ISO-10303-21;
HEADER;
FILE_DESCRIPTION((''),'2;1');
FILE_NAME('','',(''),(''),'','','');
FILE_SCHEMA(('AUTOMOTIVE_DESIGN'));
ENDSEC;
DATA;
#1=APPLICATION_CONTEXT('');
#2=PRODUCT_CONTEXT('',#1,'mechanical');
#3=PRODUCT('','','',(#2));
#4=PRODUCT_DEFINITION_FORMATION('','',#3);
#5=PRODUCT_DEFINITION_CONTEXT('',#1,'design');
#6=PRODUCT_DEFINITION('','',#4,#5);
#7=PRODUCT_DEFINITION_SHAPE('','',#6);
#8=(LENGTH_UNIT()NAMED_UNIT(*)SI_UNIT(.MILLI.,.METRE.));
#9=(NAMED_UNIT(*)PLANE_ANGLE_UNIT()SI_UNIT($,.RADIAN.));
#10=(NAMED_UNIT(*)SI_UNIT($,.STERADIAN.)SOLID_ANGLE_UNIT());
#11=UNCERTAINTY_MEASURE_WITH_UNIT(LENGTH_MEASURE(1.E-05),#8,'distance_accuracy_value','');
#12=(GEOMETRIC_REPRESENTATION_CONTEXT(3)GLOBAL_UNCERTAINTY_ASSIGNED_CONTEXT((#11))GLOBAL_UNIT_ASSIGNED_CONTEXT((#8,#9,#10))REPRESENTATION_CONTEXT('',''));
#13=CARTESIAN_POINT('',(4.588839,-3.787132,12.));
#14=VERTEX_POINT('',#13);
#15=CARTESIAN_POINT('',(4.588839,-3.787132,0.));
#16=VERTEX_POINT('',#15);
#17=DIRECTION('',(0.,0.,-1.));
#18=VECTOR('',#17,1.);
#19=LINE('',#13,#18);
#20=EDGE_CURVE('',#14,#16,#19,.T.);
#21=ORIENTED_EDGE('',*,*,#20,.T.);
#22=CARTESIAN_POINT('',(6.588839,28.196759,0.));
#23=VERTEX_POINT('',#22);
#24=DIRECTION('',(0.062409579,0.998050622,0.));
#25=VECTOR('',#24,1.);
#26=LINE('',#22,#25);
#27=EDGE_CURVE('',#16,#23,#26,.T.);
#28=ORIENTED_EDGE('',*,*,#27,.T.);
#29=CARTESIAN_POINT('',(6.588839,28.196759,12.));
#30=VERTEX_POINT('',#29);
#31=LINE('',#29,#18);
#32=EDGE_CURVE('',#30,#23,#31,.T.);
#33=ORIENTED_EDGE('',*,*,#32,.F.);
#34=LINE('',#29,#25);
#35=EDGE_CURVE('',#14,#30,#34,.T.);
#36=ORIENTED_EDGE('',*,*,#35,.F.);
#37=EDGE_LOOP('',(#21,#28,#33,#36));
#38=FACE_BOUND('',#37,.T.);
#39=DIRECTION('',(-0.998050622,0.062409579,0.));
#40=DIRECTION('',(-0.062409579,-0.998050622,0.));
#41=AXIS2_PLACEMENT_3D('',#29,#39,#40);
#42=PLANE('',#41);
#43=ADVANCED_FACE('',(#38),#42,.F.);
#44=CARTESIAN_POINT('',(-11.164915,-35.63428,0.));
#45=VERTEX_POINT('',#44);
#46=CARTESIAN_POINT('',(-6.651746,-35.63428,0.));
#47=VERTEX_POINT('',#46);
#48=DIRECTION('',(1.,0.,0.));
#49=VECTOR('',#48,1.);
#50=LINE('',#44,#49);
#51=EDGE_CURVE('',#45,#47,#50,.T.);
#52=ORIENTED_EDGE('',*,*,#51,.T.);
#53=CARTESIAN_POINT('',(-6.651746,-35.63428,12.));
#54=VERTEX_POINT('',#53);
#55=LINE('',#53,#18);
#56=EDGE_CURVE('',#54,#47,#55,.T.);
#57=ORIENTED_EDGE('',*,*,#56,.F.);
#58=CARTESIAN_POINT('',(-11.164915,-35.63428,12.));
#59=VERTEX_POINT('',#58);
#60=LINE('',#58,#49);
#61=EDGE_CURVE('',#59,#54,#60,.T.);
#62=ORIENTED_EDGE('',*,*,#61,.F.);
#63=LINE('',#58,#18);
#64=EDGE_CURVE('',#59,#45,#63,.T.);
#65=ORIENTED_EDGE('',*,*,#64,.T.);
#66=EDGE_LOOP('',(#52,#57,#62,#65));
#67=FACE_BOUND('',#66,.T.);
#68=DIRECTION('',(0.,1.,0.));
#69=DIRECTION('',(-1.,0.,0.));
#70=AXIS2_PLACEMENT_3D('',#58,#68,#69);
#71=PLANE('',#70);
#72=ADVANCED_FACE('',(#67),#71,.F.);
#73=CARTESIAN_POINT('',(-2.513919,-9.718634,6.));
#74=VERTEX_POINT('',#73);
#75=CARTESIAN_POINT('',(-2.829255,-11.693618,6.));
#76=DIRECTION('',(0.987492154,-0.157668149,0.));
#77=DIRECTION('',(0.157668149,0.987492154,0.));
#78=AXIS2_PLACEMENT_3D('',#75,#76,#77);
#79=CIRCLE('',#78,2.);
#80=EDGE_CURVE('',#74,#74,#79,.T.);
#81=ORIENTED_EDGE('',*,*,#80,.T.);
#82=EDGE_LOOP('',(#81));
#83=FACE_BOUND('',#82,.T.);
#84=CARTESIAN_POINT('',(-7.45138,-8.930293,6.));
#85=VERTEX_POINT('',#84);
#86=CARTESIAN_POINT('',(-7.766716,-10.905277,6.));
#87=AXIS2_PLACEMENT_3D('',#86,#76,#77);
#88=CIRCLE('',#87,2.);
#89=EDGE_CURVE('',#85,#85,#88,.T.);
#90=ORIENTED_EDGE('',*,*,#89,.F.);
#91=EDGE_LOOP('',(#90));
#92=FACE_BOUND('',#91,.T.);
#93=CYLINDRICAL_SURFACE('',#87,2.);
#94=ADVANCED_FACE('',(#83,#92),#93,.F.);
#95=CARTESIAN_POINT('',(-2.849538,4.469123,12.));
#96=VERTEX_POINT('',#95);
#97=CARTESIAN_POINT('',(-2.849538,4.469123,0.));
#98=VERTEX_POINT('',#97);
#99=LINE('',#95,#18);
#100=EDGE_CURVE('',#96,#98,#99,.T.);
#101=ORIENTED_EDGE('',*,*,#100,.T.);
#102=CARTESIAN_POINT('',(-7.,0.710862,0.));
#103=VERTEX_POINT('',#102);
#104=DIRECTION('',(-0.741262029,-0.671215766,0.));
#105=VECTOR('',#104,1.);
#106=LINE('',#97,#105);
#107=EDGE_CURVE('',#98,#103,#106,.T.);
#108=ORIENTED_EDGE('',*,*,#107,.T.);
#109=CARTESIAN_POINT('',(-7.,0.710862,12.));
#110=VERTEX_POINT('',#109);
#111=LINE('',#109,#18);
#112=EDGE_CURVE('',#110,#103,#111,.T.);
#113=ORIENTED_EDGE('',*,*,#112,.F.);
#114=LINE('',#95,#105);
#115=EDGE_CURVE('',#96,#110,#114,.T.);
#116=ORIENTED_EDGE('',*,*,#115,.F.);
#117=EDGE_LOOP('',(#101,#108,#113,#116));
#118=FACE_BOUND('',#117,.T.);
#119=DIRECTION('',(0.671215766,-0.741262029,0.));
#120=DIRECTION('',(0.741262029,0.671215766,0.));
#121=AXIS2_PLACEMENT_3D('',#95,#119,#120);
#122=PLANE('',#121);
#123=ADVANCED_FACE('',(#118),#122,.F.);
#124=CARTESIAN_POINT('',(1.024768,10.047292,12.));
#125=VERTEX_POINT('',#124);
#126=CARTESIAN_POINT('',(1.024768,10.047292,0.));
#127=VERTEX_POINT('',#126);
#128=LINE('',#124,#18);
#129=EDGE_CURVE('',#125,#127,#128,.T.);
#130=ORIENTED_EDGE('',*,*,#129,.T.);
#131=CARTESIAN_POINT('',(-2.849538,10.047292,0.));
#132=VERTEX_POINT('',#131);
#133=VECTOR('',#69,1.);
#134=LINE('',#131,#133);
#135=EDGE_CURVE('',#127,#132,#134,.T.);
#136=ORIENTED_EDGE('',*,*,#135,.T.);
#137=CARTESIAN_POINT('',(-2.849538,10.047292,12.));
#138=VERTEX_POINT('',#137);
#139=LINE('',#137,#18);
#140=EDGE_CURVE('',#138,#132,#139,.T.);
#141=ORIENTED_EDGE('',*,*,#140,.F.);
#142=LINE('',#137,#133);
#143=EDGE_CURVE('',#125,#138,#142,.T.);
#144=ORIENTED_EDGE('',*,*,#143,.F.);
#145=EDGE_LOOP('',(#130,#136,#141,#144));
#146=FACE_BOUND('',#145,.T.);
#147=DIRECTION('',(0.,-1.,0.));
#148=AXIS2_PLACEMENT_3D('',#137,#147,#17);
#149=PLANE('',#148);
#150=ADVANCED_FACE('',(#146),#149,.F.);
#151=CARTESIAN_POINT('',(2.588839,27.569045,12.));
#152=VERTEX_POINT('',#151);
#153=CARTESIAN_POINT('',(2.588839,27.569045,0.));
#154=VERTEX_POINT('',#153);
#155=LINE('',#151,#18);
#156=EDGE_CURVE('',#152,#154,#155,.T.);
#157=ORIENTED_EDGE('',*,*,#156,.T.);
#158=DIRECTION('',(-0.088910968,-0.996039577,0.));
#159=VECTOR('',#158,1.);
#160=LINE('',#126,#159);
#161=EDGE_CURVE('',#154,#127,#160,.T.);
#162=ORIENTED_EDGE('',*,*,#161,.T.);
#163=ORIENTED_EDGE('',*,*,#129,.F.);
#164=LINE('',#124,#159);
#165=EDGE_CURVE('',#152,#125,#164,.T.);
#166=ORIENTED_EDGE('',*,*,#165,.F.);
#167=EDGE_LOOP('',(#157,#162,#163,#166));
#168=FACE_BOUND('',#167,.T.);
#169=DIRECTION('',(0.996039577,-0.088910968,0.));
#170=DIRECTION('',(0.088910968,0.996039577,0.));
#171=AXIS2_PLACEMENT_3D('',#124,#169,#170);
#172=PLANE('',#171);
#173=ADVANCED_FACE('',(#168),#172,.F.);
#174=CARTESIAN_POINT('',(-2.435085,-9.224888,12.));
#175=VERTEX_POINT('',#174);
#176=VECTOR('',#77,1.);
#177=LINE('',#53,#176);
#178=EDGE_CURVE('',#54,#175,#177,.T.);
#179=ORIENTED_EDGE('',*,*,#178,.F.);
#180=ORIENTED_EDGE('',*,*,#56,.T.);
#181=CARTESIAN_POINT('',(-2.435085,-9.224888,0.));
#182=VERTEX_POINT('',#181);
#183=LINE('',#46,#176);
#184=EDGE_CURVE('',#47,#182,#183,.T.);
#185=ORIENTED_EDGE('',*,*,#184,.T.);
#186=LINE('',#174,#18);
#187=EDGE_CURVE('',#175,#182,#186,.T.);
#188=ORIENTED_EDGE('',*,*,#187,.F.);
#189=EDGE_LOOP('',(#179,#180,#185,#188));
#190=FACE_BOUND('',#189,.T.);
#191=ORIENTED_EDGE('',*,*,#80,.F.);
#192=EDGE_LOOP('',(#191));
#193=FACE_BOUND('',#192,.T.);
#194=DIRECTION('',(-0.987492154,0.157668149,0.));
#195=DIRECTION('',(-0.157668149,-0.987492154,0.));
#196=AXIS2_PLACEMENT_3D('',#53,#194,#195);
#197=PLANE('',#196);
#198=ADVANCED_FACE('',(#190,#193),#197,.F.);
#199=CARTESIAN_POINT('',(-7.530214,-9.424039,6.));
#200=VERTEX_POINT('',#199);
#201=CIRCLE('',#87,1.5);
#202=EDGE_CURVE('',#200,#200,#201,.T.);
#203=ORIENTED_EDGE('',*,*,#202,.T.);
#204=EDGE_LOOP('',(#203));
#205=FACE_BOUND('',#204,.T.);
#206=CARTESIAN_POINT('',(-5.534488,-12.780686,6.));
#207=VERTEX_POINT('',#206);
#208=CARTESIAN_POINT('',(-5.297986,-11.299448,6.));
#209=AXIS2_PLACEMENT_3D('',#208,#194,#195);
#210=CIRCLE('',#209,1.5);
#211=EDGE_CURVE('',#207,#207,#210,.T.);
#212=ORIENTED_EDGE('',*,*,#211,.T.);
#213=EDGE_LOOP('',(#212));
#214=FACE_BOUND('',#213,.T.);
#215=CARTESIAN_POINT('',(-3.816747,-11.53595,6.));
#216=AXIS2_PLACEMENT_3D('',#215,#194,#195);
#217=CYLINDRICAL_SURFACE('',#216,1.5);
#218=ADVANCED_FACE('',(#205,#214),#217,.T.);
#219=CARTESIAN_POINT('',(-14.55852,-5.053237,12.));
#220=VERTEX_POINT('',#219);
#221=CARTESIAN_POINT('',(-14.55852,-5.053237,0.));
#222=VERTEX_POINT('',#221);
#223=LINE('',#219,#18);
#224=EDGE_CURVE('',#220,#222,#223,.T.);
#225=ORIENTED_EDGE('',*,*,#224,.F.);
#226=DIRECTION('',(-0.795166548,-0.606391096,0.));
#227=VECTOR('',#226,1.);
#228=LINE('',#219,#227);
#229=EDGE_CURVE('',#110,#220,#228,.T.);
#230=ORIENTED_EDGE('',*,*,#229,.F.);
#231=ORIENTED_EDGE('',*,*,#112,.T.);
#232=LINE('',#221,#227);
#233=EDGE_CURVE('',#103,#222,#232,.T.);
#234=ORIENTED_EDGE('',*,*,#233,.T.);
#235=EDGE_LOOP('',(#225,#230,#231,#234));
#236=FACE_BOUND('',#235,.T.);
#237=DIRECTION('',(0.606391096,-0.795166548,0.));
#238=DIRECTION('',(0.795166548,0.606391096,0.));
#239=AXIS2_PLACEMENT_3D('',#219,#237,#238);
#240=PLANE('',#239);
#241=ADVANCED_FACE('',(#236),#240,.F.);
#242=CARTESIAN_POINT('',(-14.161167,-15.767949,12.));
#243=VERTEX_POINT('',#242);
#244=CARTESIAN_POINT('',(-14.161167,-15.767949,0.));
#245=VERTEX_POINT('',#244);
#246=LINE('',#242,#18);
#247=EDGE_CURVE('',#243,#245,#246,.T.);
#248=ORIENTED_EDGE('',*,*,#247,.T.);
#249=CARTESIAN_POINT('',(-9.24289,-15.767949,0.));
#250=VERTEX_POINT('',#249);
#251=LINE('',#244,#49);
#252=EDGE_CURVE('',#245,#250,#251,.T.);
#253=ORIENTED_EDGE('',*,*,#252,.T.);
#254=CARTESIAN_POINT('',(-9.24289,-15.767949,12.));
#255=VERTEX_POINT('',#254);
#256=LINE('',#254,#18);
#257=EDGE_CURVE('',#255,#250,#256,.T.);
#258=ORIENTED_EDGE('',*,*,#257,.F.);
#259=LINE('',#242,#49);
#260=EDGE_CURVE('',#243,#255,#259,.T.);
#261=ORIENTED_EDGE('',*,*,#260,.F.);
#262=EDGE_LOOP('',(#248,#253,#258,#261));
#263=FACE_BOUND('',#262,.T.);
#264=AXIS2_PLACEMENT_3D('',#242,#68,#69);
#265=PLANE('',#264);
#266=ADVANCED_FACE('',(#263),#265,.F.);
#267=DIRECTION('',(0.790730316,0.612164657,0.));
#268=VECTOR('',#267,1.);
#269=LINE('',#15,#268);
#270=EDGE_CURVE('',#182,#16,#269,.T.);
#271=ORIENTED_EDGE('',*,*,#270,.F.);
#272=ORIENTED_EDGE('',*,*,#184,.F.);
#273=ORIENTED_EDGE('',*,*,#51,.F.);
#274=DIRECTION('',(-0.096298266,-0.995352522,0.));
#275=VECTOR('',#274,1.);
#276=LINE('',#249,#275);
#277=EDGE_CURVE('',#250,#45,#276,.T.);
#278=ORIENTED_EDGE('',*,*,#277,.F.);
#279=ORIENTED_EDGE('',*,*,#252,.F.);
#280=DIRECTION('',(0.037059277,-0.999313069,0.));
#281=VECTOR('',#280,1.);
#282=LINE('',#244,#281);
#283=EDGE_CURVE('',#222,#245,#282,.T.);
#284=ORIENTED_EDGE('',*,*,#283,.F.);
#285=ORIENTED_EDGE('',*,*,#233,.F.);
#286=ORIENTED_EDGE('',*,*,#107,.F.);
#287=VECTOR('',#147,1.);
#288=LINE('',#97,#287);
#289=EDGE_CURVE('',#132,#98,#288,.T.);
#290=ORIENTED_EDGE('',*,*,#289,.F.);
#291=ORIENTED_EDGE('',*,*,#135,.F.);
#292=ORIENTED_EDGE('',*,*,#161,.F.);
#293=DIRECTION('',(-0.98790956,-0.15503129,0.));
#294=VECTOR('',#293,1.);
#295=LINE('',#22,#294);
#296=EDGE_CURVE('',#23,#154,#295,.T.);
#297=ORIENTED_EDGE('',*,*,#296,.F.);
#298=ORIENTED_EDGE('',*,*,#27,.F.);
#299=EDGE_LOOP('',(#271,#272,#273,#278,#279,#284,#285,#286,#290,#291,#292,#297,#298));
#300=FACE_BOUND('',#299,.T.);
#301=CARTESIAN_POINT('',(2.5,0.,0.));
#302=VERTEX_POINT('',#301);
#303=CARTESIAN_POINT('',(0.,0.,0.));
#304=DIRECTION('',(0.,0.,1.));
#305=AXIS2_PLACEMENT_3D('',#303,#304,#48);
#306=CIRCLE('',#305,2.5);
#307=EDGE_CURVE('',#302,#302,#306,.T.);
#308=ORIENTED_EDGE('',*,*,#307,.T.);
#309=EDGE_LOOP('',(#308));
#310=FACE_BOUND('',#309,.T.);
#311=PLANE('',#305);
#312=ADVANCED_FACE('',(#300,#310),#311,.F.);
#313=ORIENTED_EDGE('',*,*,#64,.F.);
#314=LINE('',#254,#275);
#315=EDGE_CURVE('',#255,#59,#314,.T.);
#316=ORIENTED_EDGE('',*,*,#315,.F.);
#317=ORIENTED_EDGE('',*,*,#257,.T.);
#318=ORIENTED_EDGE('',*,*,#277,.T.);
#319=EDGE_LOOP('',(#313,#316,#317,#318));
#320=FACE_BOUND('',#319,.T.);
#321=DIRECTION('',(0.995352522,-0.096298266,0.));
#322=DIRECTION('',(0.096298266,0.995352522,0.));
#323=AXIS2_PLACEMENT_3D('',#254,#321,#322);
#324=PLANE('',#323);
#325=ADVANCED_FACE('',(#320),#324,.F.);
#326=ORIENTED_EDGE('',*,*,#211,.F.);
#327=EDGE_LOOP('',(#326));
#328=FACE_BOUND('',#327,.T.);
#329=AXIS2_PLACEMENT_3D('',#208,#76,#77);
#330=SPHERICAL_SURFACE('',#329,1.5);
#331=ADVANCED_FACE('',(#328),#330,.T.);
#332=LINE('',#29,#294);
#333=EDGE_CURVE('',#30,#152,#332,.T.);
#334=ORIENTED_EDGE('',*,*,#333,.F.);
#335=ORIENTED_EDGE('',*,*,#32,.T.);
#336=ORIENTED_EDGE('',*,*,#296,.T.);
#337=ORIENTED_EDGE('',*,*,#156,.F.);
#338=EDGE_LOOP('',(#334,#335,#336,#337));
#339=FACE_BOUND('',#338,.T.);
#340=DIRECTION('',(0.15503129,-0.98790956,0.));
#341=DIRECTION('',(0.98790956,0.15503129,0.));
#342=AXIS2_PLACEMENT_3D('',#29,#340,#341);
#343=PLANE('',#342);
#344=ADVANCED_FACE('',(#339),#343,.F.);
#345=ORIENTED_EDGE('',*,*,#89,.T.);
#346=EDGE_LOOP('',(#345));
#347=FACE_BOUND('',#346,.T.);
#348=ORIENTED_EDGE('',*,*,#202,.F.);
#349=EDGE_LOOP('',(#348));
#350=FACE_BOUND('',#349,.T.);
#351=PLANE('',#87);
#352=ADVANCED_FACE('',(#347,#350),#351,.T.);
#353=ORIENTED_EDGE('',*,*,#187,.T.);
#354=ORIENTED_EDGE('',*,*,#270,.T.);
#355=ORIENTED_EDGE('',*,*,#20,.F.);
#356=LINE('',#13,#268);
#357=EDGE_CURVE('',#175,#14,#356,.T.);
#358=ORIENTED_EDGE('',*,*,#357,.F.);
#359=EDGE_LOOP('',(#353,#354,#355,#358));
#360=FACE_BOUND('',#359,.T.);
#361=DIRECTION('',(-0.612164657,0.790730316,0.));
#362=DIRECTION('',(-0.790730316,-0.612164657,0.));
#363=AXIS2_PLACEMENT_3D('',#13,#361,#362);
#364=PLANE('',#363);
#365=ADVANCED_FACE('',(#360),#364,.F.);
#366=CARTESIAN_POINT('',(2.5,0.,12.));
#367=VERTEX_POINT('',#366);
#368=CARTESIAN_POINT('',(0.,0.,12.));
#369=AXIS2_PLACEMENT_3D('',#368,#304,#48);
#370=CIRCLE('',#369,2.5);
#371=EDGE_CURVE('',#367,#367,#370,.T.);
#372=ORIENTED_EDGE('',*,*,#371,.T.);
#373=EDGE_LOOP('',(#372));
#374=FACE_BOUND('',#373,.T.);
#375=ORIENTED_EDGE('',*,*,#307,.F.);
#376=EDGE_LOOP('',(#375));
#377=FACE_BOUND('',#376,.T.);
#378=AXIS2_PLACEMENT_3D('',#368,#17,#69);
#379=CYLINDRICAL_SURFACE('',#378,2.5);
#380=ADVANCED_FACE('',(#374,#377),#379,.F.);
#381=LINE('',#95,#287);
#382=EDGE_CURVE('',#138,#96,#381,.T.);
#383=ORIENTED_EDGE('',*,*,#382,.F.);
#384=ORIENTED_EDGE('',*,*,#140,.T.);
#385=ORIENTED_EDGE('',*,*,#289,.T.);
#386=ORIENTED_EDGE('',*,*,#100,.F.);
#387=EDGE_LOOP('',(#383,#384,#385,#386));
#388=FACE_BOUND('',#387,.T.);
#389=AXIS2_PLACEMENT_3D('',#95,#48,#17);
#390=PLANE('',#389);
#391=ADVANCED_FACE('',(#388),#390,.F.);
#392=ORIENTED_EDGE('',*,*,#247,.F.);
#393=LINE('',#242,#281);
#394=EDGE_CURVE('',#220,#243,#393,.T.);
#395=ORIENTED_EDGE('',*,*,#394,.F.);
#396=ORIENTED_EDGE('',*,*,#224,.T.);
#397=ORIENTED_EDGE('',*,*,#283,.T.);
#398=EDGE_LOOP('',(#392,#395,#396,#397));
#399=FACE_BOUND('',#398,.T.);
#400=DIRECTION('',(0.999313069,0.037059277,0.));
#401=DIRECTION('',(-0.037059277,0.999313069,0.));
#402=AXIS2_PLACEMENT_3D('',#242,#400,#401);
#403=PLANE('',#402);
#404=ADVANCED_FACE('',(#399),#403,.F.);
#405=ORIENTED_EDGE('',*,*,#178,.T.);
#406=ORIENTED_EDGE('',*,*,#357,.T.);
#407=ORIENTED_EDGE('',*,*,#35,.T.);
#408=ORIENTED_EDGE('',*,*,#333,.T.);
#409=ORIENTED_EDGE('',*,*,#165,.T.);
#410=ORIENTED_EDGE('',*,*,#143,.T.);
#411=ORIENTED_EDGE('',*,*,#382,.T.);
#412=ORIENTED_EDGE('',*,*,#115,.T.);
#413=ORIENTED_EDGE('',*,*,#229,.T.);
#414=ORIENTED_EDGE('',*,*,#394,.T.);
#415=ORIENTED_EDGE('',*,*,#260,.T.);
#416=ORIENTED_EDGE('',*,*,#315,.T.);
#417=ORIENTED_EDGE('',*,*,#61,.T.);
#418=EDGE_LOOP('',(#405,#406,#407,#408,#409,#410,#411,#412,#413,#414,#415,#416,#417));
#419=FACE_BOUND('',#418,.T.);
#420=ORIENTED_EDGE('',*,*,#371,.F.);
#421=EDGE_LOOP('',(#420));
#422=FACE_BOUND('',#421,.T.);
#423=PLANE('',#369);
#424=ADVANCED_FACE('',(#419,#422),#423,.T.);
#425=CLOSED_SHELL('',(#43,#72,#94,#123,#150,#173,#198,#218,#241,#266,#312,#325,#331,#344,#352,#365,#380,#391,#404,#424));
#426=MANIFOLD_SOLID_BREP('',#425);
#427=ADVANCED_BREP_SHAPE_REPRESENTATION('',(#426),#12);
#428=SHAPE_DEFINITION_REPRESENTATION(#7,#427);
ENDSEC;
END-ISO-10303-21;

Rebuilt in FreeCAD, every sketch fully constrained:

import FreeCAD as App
import Part
import Sketcher
from FreeCAD import Vector


def edges_at(feature, points):
    """Names of the edges that pass closest to the given points."""
    edges = feature.Shape.Edges
    near = lambda p: min(range(len(edges)), key=lambda i: edges[i].distToShape(Part.Vertex(*p))[0])
    return sorted({f"Edge{near(p) + 1}" for p in points})


def add_polygon(sketch, points):
    """Adds a closed chain of lines whose ends are joined by coincident constraints."""
    first, n = sketch.GeometryCount, len(points)
    for a, b in zip(points, points[1:] + points[:1]):
        sketch.addGeometry(Part.LineSegment(App.Vector(*a, 0), App.Vector(*b, 0)), False)
    for i in range(n):
        sketch.addConstraint(Sketcher.Constraint("Coincident", first + i, 2, first + (i + 1) % n, 1))

doc = App.newDocument("Part")
params = doc.addObject("Spreadsheet::Sheet", "Params")
for row, (alias, value) in enumerate([
    ("sketch1_diameter", "5 mm"),
    ("pad1_length", "12 mm"),
    ("sketch2_diameter", "4 mm"),
    ("pocket1_length", "5 mm"),
    ("sketch3_diameter", "3 mm"),
    ("pad2_length", "4 mm"),
    ("fillet_radius", "1.5 mm"),
], start=1):
    params.set(f"A{row}", alias)
    params.set(f"B{row}", "=" + value)
    params.setAlias(f"B{row}", alias)

body = doc.addObject("PartDesign::Body", "Body")

sketch1 = doc.addObject("Sketcher::SketchObject", "Sketch")
body.addObject(sketch1)
sketch1.AttachmentSupport = (doc.XY_Plane, [""])
sketch1.MapMode = "FlatFace"
add_polygon(sketch1, [(4.6, -3.8), (6.6, 28.2), (2.6, 27.6), (1, 10), (-2.8, 10), (-2.8, 4.5), (-7, 0.7), (-14.6, -5.1), (-14.2, -15.8), (-9.2, -15.8), (-11.2, -35.6), (-6.7, -35.6), (-2.4, -9.2)])
sketch1.addGeometry(Part.Circle(Vector(0, 0, 0), Vector(0, 0, 1), 2.5), False)
sketch1.addConstraint(Sketcher.Constraint("Horizontal", 3))
sketch1.addConstraint(Sketcher.Constraint("Vertical", 4))
sketch1.addConstraint(Sketcher.Constraint("Horizontal", 8))
sketch1.addConstraint(Sketcher.Constraint("Horizontal", 10))
sketch1.addConstraint(Sketcher.Constraint("Coincident", 13, 3, -1, 1))
sketch1.addConstraint(Sketcher.Constraint("Diameter", 13, 5.0))
sketch1.addConstraint(Sketcher.Constraint("DistanceX", 5, 2, -1, 1, 7.0))
sketch1.addConstraint(Sketcher.Constraint("DistanceX", 1, 2, 0, 2, 4.0))
sketch1.addConstraint(Sketcher.Constraint("Distance", 11, 26.743901))
sketch1.addConstraint(Sketcher.Constraint("DistanceX", 10, 1, 10, 2, 4.513169))
sketch1.addConstraint(Sketcher.Constraint("DistanceY", 4, 2, 4, 1, 5.578169))
sketch1.addConstraint(Sketcher.Constraint("DistanceY", 6, 2, 5, 2, 5.7641))
sketch1.addConstraint(Sketcher.Constraint("Distance", 6, 9.505581))
sketch1.addConstraint(Sketcher.Constraint("Distance", 9, 19.95909))
sketch1.addConstraint(Sketcher.Constraint("Distance", 12, 8.882831))
sketch1.addConstraint(Sketcher.Constraint("DistanceX", 3, 2, 3, 1, 3.874306))
sketch1.addConstraint(Sketcher.Constraint("DistanceX", 8, 1, 8, 2, 4.918278))
sketch1.addConstraint(Sketcher.Constraint("DistanceX", -1, 1, 0, 2, 6.588839))
sketch1.addConstraint(Sketcher.Constraint("DistanceY", -1, 1, 0, 2, 28.196759))
sketch1.addConstraint(Sketcher.Constraint("DistanceX", -1, 1, 2, 2, 1.024768))
sketch1.addConstraint(Sketcher.Constraint("DistanceY", -1, 1, 2, 2, 10.047292))
sketch1.addConstraint(Sketcher.Constraint("DistanceY", 7, 2, -1, 1, 15.767949))
sketch1.addConstraint(Sketcher.Constraint("DistanceX", 8, 2, -1, 1, 9.24289))
sketch1.addConstraint(Sketcher.Constraint("DistanceY", 9, 2, -1, 1, 35.63428))
sketch1.addConstraint(Sketcher.Constraint("DistanceX", -1, 1, 12, 2, 4.588839))
sketch1.addConstraint(Sketcher.Constraint("DistanceY", 5, 2, 4, 2, 3.75826))
sketch1.addConstraint(Sketcher.Constraint("DistanceY", 8, 2, 11, 2, 6.543061))
sketch1.addConstraint(Sketcher.Constraint("Distance", 1, 4.048954))
sketch1.setExpression("Constraints[18]", "Params.sketch1_diameter")
pad1 = doc.addObject("PartDesign::Pad", "Pad")
body.addObject(pad1)
pad1.Profile = sketch1
pad1.setExpression("Length", "Params.pad1_length")

sketch2 = doc.addObject("Sketcher::SketchObject", "Sketch001")
body.addObject(sketch2)
sketch2.Placement = App.Placement(Vector(-0.938272, 0.149809, 0), App.Rotation(Vector(0, 0, -1), Vector(0.157668149, 0.987492154, 0), Vector(0.987492154, -0.157668149, 0), "ZXY"))
sketch2.addGeometry(Part.Circle(Vector(-6, -12, 0), Vector(0, 0, 1), 2), False)
sketch2.addConstraint(Sketcher.Constraint("Diameter", 0, 4.0))
sketch2.addConstraint(Sketcher.Constraint("DistanceX", 0, 3, -1, 1, 6.0))
sketch2.addConstraint(Sketcher.Constraint("DistanceY", 0, 3, -1, 1, 11.993439))
sketch2.setExpression("Constraints[0]", "Params.sketch2_diameter")
pocket1 = doc.addObject("PartDesign::Pocket", "Pocket")
body.addObject(pocket1)
pocket1.Profile = sketch2
pocket1.setExpression("Length", "Params.pocket1_length")

sketch3 = doc.addObject("Sketcher::SketchObject", "Sketch002")
body.addObject(sketch3)
sketch3.Placement = App.Placement(Vector(-5.875733, 0.93815, 0), App.Rotation(Vector(0, 0, -1), Vector(0.157668149, 0.987492154, 0), Vector(0.987492154, -0.157668149, 0), "ZXY"))
sketch3.addGeometry(Part.Circle(Vector(-6, -12, 0), Vector(0, 0, 1), 1.5), False)
sketch3.addConstraint(Sketcher.Constraint("Diameter", 0, 3.0))
sketch3.addConstraint(Sketcher.Constraint("DistanceX", 0, 3, -1, 1, 6.0))
sketch3.addConstraint(Sketcher.Constraint("DistanceY", 0, 3, -1, 1, 11.993439))
sketch3.setExpression("Constraints[0]", "Params.sketch3_diameter")
pad2 = doc.addObject("PartDesign::Pad", "Pad001")
body.addObject(pad2)
pad2.Profile = sketch3
pad2.setExpression("Length", "Params.pad2_length")
doc.recompute()

fillet = doc.addObject("PartDesign::Fillet", "Fillet")
body.addObject(fillet)
fillet.Base = (pad2, edges_at(pad2, [(-4.053, -13.017, 6)]))
fillet.setExpression("Radius", "Params.fillet_radius")

doc.recompute()
